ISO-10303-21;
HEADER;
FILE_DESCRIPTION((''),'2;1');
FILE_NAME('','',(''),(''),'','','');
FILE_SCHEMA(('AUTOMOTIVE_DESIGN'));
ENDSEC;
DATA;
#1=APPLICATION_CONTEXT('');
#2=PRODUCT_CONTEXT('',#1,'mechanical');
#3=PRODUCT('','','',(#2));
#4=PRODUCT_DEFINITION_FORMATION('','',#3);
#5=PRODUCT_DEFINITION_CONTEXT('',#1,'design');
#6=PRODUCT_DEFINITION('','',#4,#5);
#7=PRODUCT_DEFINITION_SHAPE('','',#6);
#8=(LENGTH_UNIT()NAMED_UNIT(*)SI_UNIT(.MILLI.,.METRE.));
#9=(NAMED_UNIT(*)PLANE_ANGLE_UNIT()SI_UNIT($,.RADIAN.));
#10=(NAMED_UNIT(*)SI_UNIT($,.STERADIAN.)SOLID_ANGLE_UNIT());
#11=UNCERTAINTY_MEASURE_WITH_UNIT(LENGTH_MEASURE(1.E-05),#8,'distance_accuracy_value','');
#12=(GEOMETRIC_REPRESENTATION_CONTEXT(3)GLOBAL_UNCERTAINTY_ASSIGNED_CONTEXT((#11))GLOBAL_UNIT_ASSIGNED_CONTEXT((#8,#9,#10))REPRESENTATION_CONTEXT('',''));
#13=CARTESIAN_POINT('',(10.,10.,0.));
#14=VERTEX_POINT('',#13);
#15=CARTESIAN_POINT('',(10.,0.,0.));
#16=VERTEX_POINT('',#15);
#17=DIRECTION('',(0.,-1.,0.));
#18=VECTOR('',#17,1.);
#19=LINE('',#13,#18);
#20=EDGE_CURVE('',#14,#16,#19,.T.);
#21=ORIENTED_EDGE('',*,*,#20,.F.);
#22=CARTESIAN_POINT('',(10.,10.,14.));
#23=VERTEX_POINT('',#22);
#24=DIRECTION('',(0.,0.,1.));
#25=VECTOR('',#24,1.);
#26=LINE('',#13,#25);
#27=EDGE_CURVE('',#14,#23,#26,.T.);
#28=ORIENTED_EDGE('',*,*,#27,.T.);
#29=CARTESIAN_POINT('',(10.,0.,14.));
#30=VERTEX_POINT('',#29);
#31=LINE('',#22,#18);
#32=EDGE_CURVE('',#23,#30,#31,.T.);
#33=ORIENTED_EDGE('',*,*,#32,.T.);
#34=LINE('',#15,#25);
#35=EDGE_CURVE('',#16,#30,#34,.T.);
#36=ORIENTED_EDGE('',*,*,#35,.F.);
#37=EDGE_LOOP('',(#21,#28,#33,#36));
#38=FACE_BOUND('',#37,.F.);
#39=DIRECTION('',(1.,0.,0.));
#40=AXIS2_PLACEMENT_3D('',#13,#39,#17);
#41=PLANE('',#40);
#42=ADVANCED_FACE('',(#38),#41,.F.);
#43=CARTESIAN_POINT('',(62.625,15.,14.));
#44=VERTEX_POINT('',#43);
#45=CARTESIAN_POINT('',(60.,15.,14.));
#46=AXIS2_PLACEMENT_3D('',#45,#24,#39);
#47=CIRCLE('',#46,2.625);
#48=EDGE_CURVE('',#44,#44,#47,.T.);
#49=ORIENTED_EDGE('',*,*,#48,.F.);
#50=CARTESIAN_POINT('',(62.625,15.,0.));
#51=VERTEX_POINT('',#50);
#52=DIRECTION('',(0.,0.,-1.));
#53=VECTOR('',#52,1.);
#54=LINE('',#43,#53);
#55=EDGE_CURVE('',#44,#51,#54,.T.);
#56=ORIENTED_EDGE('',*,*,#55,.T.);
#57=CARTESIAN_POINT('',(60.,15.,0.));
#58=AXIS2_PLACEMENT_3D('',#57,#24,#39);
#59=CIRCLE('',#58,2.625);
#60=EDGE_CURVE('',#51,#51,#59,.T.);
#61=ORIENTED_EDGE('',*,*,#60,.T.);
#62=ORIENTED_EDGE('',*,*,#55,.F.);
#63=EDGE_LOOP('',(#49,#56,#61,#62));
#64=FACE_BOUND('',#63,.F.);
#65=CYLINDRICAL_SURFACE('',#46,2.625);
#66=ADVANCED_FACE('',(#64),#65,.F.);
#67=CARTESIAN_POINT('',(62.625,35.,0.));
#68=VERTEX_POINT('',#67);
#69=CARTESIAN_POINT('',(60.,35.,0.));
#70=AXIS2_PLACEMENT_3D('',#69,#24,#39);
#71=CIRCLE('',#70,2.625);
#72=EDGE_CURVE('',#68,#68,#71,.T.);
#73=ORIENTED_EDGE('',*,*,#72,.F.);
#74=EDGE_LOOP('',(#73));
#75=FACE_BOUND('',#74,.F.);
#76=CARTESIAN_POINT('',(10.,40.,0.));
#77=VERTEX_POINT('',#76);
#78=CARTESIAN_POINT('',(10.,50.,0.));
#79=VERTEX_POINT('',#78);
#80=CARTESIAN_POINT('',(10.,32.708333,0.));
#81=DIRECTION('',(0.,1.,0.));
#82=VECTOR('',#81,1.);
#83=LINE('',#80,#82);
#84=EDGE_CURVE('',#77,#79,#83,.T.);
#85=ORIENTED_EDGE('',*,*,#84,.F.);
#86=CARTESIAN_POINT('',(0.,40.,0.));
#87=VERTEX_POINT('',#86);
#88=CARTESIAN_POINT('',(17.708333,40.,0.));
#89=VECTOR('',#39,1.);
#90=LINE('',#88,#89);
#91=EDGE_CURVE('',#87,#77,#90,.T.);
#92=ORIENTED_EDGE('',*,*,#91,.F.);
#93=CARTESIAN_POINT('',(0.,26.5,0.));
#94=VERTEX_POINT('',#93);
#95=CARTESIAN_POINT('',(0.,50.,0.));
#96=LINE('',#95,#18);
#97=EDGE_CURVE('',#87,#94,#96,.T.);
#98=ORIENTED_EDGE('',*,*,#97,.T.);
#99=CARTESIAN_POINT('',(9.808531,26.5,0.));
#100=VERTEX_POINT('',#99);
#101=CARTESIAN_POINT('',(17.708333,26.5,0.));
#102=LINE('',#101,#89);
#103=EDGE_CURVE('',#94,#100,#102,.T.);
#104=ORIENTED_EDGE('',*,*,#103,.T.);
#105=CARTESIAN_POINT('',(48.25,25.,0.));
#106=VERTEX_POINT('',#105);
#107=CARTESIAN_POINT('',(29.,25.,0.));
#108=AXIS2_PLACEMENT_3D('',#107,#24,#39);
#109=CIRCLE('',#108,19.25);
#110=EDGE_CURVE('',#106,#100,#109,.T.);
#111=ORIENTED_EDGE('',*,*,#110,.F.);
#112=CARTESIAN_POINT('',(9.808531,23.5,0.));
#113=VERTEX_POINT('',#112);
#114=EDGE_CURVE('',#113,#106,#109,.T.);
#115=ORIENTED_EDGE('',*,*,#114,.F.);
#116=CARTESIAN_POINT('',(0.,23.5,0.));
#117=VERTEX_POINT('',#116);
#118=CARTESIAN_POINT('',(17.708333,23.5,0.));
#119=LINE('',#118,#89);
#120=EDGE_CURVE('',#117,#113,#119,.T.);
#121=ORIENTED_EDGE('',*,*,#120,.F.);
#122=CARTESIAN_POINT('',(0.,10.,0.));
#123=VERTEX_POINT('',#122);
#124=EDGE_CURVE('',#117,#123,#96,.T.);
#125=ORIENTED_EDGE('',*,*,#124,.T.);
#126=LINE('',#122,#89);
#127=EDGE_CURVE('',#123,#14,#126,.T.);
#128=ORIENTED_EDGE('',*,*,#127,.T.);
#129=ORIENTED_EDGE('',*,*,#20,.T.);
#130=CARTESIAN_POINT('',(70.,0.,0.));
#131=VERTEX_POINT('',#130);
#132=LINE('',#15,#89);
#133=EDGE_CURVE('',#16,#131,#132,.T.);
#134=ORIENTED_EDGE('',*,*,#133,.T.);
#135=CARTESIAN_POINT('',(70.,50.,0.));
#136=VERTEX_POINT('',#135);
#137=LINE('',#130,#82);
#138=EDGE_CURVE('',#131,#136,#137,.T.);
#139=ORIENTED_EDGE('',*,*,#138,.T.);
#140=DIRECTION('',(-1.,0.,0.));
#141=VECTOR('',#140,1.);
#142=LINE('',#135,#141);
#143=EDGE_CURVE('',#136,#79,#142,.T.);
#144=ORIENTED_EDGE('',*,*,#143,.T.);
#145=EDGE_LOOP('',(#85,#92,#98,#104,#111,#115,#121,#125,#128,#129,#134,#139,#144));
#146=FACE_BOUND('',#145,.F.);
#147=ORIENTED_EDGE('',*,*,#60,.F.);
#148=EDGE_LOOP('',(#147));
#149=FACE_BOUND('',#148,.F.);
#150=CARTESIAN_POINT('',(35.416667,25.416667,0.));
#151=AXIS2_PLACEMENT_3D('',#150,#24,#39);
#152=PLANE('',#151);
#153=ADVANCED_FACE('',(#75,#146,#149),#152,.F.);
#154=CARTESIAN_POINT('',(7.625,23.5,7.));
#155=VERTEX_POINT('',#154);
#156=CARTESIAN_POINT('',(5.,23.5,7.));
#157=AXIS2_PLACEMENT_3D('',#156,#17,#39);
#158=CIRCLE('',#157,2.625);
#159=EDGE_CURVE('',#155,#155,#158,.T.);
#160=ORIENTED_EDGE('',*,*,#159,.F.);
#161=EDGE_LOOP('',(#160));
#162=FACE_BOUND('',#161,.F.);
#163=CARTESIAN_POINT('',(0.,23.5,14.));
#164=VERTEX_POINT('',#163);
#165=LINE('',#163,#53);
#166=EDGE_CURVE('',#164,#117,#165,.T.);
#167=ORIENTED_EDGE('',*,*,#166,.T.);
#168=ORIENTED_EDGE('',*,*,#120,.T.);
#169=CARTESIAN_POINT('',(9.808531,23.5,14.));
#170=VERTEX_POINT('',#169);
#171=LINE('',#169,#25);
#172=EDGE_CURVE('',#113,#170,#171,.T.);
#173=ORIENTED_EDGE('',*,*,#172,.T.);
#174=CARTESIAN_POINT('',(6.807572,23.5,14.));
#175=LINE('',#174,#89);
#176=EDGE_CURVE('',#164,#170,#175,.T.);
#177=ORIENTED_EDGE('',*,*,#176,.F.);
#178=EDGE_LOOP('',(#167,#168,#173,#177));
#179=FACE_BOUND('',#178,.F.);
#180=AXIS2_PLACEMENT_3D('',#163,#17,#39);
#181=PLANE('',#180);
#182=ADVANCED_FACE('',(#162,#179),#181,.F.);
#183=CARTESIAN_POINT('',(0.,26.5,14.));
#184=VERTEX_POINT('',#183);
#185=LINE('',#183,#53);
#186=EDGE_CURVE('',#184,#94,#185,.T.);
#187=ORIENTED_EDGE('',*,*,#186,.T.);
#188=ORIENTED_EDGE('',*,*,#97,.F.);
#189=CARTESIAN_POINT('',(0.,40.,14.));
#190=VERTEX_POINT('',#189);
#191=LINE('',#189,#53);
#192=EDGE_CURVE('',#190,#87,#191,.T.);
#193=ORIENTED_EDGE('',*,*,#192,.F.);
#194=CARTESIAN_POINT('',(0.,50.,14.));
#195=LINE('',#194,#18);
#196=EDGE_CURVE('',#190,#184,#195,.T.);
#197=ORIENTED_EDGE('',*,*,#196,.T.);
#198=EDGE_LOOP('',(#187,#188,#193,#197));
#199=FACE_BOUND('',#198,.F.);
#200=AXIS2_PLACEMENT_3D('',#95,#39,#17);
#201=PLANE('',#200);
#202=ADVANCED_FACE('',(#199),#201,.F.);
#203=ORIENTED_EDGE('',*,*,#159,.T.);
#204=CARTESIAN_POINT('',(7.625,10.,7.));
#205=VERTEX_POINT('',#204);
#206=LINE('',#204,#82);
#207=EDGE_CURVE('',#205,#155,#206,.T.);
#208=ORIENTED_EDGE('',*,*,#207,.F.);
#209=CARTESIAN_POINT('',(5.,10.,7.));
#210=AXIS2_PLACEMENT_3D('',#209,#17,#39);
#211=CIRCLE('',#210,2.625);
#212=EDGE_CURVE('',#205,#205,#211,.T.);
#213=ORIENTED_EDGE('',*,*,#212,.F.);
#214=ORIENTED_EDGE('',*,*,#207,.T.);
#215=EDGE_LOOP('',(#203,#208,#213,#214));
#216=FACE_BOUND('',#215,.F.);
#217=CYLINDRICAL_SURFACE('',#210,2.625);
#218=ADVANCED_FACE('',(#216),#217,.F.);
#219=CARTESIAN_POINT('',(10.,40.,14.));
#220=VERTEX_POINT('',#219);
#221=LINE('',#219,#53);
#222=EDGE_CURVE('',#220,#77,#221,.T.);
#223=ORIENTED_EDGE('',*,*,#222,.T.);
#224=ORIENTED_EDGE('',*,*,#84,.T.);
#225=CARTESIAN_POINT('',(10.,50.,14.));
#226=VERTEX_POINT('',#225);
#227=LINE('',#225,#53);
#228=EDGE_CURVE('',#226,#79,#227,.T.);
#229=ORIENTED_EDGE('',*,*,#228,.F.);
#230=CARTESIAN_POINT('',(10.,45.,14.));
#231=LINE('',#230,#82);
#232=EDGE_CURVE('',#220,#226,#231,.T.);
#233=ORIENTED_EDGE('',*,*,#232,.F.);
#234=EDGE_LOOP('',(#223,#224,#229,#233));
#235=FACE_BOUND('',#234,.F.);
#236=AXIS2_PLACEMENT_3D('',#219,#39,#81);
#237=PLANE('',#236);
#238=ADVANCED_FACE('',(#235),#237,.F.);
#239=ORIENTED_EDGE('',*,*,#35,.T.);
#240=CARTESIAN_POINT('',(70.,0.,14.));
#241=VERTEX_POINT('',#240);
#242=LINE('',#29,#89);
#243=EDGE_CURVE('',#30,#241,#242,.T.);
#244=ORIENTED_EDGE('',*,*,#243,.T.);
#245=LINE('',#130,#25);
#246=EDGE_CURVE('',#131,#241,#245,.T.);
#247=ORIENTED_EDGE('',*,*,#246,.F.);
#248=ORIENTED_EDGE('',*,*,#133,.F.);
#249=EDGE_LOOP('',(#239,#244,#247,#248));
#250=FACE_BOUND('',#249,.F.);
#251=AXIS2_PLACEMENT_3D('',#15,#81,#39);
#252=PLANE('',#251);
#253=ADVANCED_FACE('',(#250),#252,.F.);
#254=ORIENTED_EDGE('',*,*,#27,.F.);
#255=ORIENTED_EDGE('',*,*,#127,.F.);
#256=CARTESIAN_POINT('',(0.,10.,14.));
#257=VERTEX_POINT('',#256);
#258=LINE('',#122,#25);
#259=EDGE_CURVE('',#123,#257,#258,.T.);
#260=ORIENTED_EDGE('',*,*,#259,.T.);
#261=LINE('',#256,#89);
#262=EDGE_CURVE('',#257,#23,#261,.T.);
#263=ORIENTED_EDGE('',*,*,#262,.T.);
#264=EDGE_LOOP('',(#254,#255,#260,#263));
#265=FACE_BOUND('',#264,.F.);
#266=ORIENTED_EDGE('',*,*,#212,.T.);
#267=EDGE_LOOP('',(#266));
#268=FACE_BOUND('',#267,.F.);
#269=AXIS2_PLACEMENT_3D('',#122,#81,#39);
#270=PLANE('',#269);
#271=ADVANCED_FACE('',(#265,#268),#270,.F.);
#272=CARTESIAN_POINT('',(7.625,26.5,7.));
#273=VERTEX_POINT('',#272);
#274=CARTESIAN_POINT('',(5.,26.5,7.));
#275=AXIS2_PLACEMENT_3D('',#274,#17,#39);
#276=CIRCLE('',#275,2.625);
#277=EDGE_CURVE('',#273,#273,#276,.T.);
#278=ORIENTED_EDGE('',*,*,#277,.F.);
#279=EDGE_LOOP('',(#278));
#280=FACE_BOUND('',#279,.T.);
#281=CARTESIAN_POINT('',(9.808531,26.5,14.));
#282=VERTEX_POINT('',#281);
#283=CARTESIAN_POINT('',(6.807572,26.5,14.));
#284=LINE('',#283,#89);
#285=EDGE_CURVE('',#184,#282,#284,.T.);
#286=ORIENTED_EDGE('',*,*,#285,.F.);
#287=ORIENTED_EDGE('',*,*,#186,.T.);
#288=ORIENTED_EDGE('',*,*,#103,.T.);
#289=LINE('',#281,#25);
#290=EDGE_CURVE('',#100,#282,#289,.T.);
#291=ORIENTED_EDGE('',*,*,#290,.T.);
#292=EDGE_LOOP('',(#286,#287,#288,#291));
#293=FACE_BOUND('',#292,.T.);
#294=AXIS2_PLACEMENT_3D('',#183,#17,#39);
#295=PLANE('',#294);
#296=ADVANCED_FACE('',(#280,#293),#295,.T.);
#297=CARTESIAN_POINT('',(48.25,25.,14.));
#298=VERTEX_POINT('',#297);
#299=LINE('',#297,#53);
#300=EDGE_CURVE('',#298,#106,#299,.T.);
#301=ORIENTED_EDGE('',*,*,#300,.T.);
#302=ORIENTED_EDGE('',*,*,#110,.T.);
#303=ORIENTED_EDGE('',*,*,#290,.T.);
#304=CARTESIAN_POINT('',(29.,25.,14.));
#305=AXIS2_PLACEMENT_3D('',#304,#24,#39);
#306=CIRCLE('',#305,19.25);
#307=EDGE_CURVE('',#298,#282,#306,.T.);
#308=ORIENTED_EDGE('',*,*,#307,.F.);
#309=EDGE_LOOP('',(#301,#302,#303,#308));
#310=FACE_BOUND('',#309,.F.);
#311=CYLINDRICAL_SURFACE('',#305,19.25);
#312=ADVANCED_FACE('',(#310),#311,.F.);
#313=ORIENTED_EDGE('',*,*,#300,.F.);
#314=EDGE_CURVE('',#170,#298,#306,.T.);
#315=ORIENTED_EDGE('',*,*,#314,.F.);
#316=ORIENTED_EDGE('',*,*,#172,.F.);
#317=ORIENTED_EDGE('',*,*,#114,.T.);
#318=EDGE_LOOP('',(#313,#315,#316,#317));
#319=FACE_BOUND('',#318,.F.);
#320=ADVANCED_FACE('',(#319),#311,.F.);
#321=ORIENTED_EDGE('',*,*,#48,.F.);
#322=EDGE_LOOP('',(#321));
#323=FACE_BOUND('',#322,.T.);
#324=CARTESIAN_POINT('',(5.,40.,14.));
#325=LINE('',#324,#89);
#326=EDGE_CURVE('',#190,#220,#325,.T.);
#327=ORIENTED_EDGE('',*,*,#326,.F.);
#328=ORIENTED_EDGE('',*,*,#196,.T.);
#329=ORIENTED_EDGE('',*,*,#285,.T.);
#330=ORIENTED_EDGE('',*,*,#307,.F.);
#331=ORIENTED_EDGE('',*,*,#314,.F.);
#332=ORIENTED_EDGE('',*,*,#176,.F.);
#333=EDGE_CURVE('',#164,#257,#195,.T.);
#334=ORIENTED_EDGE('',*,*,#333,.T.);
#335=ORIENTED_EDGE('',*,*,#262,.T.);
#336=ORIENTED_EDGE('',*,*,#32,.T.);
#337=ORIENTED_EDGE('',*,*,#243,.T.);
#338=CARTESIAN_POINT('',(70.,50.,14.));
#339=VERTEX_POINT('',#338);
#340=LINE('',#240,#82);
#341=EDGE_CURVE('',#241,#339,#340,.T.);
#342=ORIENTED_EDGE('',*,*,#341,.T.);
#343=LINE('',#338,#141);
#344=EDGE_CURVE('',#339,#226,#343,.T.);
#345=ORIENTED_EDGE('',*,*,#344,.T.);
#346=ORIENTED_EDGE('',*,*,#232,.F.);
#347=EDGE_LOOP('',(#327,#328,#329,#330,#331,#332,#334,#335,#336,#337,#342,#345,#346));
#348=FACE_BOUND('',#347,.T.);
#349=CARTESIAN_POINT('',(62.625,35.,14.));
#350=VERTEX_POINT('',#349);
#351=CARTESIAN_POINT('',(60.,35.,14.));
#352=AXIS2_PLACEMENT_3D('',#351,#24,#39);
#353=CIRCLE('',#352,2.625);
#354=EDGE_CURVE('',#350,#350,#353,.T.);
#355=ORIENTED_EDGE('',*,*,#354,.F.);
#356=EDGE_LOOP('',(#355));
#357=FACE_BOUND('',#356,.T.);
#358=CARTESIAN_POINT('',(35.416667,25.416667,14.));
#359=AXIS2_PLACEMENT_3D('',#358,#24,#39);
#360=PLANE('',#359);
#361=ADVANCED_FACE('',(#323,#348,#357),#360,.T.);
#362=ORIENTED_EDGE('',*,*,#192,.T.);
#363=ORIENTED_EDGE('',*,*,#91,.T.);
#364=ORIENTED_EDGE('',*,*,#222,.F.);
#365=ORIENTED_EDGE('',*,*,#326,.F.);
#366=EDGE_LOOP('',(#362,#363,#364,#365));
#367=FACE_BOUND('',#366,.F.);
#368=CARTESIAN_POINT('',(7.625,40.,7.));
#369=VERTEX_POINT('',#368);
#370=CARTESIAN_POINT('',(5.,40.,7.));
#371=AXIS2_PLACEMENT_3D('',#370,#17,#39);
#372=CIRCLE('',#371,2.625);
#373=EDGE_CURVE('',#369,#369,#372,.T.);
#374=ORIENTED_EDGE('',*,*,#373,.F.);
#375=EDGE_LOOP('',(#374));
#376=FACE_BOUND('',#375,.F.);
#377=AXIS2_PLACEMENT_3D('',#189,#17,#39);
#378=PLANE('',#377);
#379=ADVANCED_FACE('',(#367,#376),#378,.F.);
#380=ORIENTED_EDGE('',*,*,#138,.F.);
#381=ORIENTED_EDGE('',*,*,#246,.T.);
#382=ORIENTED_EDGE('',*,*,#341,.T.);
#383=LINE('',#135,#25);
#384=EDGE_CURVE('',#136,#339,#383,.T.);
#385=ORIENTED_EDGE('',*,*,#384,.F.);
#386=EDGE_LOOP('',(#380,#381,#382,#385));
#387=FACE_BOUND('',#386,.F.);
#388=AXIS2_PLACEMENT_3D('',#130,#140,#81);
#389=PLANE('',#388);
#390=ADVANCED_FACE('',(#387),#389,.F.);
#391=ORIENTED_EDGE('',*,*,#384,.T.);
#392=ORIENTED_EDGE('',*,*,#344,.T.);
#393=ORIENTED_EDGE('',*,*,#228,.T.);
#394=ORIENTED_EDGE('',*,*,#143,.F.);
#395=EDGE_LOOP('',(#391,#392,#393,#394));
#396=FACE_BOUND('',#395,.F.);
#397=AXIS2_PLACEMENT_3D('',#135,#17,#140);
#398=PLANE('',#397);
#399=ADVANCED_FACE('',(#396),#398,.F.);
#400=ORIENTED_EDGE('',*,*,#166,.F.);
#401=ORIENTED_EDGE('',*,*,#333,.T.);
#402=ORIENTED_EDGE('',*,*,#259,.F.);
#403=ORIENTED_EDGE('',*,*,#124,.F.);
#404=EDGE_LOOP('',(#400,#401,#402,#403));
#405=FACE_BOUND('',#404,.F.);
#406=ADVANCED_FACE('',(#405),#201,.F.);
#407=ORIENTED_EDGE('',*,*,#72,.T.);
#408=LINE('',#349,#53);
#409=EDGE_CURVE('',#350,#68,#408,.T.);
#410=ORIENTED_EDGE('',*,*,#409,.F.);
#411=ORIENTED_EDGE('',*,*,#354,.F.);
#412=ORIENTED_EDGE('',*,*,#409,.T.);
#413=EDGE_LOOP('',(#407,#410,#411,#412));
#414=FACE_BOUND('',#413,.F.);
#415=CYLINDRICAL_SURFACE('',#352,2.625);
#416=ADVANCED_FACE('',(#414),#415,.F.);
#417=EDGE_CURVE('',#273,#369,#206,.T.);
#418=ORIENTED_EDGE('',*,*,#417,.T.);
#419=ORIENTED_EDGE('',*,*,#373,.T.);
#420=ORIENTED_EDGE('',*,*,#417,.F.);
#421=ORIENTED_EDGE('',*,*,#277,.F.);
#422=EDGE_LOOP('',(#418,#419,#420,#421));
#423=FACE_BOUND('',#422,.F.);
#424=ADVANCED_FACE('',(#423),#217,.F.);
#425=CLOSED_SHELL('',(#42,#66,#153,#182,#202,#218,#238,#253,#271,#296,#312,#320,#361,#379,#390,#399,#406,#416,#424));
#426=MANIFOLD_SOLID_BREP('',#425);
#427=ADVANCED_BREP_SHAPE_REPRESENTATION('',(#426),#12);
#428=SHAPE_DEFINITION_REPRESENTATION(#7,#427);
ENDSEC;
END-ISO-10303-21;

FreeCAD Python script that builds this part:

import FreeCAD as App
import Part
import Sketcher
from FreeCAD import Vector


def add_polygon(sketch, points):
    """Adds a closed chain of lines whose ends are joined by coincident constraints."""
    first, n = sketch.GeometryCount, len(points)
    for a, b in zip(points, points[1:] + points[:1]):
        sketch.addGeometry(Part.LineSegment(App.Vector(*a, 0), App.Vector(*b, 0)), False)
    for i in range(n):
        sketch.addConstraint(Sketcher.Constraint("Coincident", first + i, 2, first + (i + 1) % n, 1))

doc = App.newDocument("Part")
body = doc.addObject("PartDesign::Body", "Body")

sketch1 = body.newObject("Sketcher::SketchObject", "Sketch")
sketch1.AttachmentSupport = (doc.getObject("XY_Plane"), [""])
sketch1.MapMode = "FlatFace"
add_polygon(sketch1, [(10, 10), (10, 0), (70, 0), (70, 50), (0, 50), (0, 10)])
sketch1.addConstraint([
    Sketcher.Constraint("Vertical", 0),
    Sketcher.Constraint("Horizontal", 1),
    Sketcher.Constraint("Vertical", 2),
    Sketcher.Constraint("Horizontal", 3),
    Sketcher.Constraint("Vertical", 4),
    Sketcher.Constraint("Horizontal", 5),
    Sketcher.Constraint("PointOnObject", 0, 2, -1),
    Sketcher.Constraint("PointOnObject", 3, 2, -2),
    Sketcher.Constraint("Equal", 5, 0),
    Sketcher.Constraint("DistanceX", 1, 1, 1, 2, 60.0),
    Sketcher.Constraint("DistanceX", 3, 2, 3, 1, 70.0),
    Sketcher.Constraint("DistanceY", 2, 1, 2, 2, 50.0),
])
pad1 = body.newObject("PartDesign::Pad", "Pad")
pad1.Profile = sketch1
pad1.Length = 14

sketch2 = body.newObject("Sketcher::SketchObject", "Sketch001")
sketch2.AttachmentSupport = (doc.getObject("XY_Plane"), [""])
sketch2.MapMode = "FlatFace"
sketch2.AttachmentOffset = App.Placement(Vector(0, 0, 14), App.Rotation())
sketch2.addGeometry(Part.Circle(Vector(29, 25, 0), Vector(0, 0, 1), 19.2), False)
sketch2.addGeometry(Part.Circle(Vector(60, 35, 0), Vector(0, 0, 1), 2.6), False)
sketch2.addGeometry(Part.Circle(Vector(60, 15, 0), Vector(0, 0, 1), 2.6), False)
add_polygon(sketch2, [(0, 50), (0, 40), (10, 40), (10, 50)])
sketch2.addConstraint([
    Sketcher.Constraint("Vertical", 3),
    Sketcher.Constraint("Horizontal", 4),
    Sketcher.Constraint("Vertical", 5),
    Sketcher.Constraint("Horizontal", 6),
    Sketcher.Constraint("Equal", 1, 2),
    Sketcher.Constraint("PointOnObject", 3, 2, -2),
    Sketcher.Constraint("Vertical", 1, 3, 2, 3),
    Sketcher.Constraint("Equal", 6, 3),
    Sketcher.Constraint("Diameter", 0, 38.5),
    Sketcher.Constraint("Diameter", 1, 5.25),
    Sketcher.Constraint("DistanceX", 4, 1, 4, 2, 10.0),
    Sketcher.Constraint("DistanceX", -1, 1, 0, 3, 29.0),
    Sketcher.Constraint("DistanceY", -1, 1, 0, 3, 25.0),
    Sketcher.Constraint("DistanceX", -1, 1, 1, 3, 60.0),
    Sketcher.Constraint("DistanceY", -1, 1, 1, 3, 35.0),
    Sketcher.Constraint("DistanceY", -1, 1, 2, 3, 15.0),
    Sketcher.Constraint("DistanceY", -1, 1, 3, 2, 40.0),
])
pocket1 = body.newObject("PartDesign::Pocket", "Pocket")
pocket1.Profile = sketch2
pocket1.Length = 25

sketch3 = body.newObject("Sketcher::SketchObject", "Sketch002")
sketch3.AttachmentSupport = (doc.getObject("XY_Plane"), [""])
sketch3.MapMode = "FlatFace"
sketch3.AttachmentOffset = App.Placement(Vector(0, 0, 14), App.Rotation())
add_polygon(sketch3, [(0, 26.5), (0, 23.5), (13.6, 23.5), (13.6, 26.5)])
sketch3.addConstraint([
    Sketcher.Constraint("Vertical", 0),
    Sketcher.Constraint("Horizontal", 1),
    Sketcher.Constraint("Vertical", 2),
    Sketcher.Constraint("Horizontal", 3),
    Sketcher.Constraint("PointOnObject", 0, 2, -2),
    Sketcher.Constraint("DistanceY", 0, 2, 0, 1, 3.0),
    Sketcher.Constraint("DistanceY", -1, 1, 0, 2, 23.5),
    Sketcher.Constraint("DistanceX", 1, 1, 1, 2, 13.615144),
])
pocket2 = body.newObject("PartDesign::Pocket", "Pocket001")
pocket2.Profile = sketch3
pocket2.Length = 25

sketch4 = body.newObject("Sketcher::SketchObject", "Sketch003")
sketch4.AttachmentSupport = (doc.getObject("XZ_Plane"), [""])
sketch4.MapMode = "FlatFace"
sketch4.AttachmentOffset = App.Placement(Vector(0, 0, -10), App.Rotation())
sketch4.addGeometry(Part.Circle(Vector(5, 7, 0), Vector(0, 0, 1), 2.6), False)
sketch4.addConstraint([
    Sketcher.Constraint("Diameter", 0, 5.25),
    Sketcher.Constraint("DistanceX", -1, 1, 0, 3, 5.0),
    Sketcher.Constraint("DistanceY", -1, 1, 0, 3, 7.0),
])
pocket3 = body.newObject("PartDesign::Pocket", "Pocket002")
pocket3.Profile = sketch4
pocket3.Type = "ThroughAll"

doc.recompute()
